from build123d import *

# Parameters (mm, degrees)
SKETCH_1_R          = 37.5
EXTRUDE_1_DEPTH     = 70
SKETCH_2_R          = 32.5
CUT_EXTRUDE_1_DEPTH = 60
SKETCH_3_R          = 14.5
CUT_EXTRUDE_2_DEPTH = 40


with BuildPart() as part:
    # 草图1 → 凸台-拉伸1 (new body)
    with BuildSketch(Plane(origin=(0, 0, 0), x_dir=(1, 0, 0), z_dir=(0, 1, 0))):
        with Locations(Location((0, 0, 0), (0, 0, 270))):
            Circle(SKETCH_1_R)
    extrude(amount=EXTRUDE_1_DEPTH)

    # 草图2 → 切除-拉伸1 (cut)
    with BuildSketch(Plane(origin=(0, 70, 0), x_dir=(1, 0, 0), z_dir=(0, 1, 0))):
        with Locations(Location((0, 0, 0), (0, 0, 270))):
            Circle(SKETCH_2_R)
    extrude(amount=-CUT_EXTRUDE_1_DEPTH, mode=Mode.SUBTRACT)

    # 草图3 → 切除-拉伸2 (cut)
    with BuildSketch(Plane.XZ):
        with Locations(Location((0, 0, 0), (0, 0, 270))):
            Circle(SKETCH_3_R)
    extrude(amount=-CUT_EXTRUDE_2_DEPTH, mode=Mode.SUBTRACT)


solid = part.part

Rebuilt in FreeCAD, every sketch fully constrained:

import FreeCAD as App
import Part
import Sketcher
from FreeCAD import Vector
Q = App.Units.Quantity

doc = App.newDocument("Part")
params = doc.addObject("Spreadsheet::Sheet", "Params")
for row, (alias, value) in enumerate([
    ("sketch1_diameter", "75 mm"),
    ("pad1_length", "70 mm"),
    ("sketch2_diameter", "65 mm"),
    ("pocket1_length", "60 mm"),
    ("sketch3_diameter", "29 mm"),
    ("pocket2_length", "40 mm"),
], start=1):
    params.set(f"A{row}", alias)
    params.set(f"B{row}", "=" + value)
    params.setAlias(f"B{row}", alias)

body = doc.addObject("PartDesign::Body", "Body")

# Sketch on XZ plane
sketch1 = body.newObject("Sketcher::SketchObject", "Sketch")
sketch1.AttachmentSupport = (doc.getObject("XZ_Plane"), [""])
sketch1.MapMode = "FlatFace"
sketch1.addGeometry(Part.Circle(Vector(0, 0, 0), Vector(0, 0, 1), 38), False)
sketch1.addConstraint([
    Sketcher.Constraint("Coincident", 0, 3, -1, 1),
    Sketcher.Constraint("Diameter", 0, Q("75 mm")),
])
sketch1.setExpression("Constraints[1]", "Params.sketch1_diameter")
pad1 = body.newObject("PartDesign::Pad", "Pad")
pad1.Profile = sketch1
pad1.setExpression("Length", "Params.pad1_length")
pad1.Reversed = True

# Sketch on XZ plane
sketch2 = body.newObject("Sketcher::SketchObject", "Sketch001")
sketch2.AttachmentSupport = (doc.getObject("XZ_Plane"), [""])
sketch2.MapMode = "FlatFace"
sketch2.AttachmentOffset = App.Placement(Vector(0, 0, -70), App.Rotation())
sketch2.addGeometry(Part.Circle(Vector(0, 0, 0), Vector(0, 0, 1), 32), False)
sketch2.addConstraint([
    Sketcher.Constraint("Coincident", 0, 3, -1, 1),
    Sketcher.Constraint("Diameter", 0, Q("65 mm")),
])
sketch2.setExpression("Constraints[1]", "Params.sketch2_diameter")
pocket1 = body.newObject("PartDesign::Pocket", "Pocket")
pocket1.Profile = sketch2
pocket1.setExpression("Length", "Params.pocket1_length")
pocket1.Reversed = True

# Sketch on XZ plane
sketch3 = body.newObject("Sketcher::SketchObject", "Sketch002")
sketch3.AttachmentSupport = (doc.getObject("XZ_Plane"), [""])
sketch3.MapMode = "FlatFace"
sketch3.addGeometry(Part.Circle(Vector(0, 0, 0), Vector(0, 0, 1), 14), False)
sketch3.addConstraint([
    Sketcher.Constraint("Coincident", 0, 3, -1, 1),
    Sketcher.Constraint("Diameter", 0, Q("29 mm")),
])
sketch3.setExpression("Constraints[1]", "Params.sketch3_diameter")
pocket2 = body.newObject("PartDesign::Pocket", "Pocket001")
pocket2.Profile = sketch3
pocket2.setExpression("Length", "Params.pocket2_length")

doc.recompute()
